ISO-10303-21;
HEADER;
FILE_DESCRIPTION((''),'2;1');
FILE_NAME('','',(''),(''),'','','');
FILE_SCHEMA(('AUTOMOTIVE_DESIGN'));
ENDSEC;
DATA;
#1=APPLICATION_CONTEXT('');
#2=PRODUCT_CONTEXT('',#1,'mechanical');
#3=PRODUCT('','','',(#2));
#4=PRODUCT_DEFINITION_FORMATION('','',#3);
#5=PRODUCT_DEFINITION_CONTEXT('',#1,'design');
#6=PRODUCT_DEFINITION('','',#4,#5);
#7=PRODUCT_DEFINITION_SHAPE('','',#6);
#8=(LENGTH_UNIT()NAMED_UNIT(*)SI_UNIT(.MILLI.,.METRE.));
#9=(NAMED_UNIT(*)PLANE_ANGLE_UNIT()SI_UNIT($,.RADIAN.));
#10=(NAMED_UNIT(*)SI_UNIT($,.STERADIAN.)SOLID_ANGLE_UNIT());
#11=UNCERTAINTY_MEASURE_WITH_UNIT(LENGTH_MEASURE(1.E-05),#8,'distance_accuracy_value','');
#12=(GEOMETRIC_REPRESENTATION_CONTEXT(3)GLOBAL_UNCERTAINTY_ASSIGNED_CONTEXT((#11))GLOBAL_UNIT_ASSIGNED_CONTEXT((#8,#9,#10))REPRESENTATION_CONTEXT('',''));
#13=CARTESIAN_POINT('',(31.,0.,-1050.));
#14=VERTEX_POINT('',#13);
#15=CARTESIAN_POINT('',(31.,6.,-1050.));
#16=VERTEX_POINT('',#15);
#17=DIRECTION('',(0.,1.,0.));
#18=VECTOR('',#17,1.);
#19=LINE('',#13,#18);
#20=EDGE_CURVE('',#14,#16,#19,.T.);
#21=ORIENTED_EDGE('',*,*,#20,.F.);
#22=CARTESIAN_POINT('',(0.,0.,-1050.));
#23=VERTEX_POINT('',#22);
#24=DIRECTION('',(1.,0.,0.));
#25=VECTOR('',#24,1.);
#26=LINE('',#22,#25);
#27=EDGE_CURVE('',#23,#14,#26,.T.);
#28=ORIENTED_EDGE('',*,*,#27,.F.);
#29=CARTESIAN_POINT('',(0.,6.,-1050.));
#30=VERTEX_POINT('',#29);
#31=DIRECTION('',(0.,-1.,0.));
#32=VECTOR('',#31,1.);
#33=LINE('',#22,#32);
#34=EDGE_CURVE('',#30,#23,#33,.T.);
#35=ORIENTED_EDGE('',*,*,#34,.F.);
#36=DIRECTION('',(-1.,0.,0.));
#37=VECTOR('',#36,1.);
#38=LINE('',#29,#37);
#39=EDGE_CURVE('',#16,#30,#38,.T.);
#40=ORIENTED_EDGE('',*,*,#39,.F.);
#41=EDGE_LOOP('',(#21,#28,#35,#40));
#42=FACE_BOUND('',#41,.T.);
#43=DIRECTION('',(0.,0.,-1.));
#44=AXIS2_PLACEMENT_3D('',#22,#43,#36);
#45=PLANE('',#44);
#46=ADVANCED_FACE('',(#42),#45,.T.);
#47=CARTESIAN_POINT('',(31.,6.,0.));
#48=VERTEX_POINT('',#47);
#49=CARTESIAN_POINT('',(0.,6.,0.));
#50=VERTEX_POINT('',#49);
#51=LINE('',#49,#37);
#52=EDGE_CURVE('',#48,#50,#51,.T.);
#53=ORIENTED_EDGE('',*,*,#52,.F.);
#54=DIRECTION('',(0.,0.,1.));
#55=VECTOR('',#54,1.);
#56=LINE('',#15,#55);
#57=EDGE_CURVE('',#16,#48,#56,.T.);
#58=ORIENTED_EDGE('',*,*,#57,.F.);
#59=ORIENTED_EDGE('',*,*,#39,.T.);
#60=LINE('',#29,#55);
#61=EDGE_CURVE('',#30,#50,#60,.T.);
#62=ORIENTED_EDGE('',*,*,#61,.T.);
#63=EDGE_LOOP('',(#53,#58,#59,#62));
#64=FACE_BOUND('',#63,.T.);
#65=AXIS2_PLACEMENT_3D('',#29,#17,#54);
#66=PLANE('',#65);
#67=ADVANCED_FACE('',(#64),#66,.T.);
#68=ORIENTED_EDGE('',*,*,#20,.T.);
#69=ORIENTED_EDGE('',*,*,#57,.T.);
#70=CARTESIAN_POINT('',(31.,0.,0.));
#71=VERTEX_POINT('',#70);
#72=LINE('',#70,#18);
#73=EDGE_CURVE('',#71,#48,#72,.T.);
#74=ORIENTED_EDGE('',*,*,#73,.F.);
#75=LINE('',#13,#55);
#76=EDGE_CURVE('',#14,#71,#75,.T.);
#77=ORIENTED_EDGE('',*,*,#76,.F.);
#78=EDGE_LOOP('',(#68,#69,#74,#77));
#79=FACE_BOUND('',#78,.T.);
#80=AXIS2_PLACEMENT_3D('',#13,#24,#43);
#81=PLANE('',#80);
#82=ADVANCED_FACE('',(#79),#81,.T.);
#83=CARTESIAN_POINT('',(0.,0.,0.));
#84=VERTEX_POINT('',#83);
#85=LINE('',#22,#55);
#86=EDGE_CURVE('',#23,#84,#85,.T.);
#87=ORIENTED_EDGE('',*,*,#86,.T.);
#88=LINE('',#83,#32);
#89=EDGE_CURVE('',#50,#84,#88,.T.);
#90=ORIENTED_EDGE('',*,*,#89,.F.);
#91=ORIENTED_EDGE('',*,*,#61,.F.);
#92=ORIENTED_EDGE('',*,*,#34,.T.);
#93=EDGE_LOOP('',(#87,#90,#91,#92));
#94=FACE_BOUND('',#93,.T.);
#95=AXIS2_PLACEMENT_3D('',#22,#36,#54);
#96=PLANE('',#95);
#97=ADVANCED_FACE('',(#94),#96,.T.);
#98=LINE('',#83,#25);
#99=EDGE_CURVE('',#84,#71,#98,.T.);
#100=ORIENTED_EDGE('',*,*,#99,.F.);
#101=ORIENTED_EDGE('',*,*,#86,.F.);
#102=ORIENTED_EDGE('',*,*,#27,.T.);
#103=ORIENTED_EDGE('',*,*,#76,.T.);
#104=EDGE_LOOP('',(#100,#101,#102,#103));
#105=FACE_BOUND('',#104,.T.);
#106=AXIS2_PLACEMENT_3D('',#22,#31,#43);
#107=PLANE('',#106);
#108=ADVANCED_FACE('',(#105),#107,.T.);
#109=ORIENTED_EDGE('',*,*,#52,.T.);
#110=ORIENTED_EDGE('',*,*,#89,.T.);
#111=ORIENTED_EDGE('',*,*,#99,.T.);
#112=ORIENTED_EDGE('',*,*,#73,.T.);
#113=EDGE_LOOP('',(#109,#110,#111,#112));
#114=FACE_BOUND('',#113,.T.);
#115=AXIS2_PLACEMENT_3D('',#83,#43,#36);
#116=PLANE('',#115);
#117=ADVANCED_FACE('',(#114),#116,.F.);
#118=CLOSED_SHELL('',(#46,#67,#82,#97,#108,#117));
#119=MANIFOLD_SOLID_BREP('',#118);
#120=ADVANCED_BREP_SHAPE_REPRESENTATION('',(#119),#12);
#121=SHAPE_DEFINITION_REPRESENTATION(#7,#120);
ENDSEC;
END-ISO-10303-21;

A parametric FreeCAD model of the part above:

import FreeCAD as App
import Part
import Sketcher

V = App.Vector


def add_polygon(sketch, points):
    """Adds a closed chain of lines whose ends are joined by coincident constraints."""
    first, n = sketch.GeometryCount, len(points)
    for a, b in zip(points, points[1:] + points[:1]):
        sketch.addGeometry(Part.LineSegment(App.Vector(*a, 0), App.Vector(*b, 0)), False)
    for i in range(n):
        sketch.addConstraint(Sketcher.Constraint("Coincident", first + i, 2, first + (i + 1) % n, 1))

doc = App.newDocument("Part")
params = doc.addObject("Spreadsheet::Sheet", "Params")
for row, (alias, value) in enumerate([
    ("sketch1_width", "31 mm"),
    ("sketch1_height", "6 mm"),
    ("pad1_length", "1050 mm"),
], start=1):
    params.set(f"A{row}", alias)
    params.set(f"B{row}", "=" + value)
    params.setAlias(f"B{row}", alias)

body = doc.addObject("PartDesign::Body", "Body")

# Sketch on XY plane
sketch1 = body.newObject("Sketcher::SketchObject", "Sketch")
sketch1.AttachmentSupport = (doc.getObject("XY_Plane"), [""])
sketch1.MapMode = "FlatFace"
add_polygon(sketch1, [(0, 6), (0, 0), (31, 0), (31, 6)])  # lines 0-3
sketch1.addConstraint(Sketcher.Constraint("Vertical", 0))
sketch1.addConstraint(Sketcher.Constraint("Horizontal", 1))
sketch1.addConstraint(Sketcher.Constraint("Vertical", 2))
sketch1.addConstraint(Sketcher.Constraint("Horizontal", 3))
sketch1.addConstraint(Sketcher.Constraint("Coincident", 0, 2, -1, 1))
sketch1.addConstraint(Sketcher.Constraint("DistanceX", 1, 1, 1, 2, 31.0))
sketch1.addConstraint(Sketcher.Constraint("DistanceY", 0, 2, 0, 1, 6.0))
sketch1.setExpression("Constraints[9]", "Params.sketch1_width")
sketch1.setExpression("Constraints[10]", "Params.sketch1_height")
pad1 = body.newObject("PartDesign::Pad", "Pad")
pad1.Profile = sketch1
pad1.setExpression("Length", "Params.pad1_length")
pad1.Reversed = True

doc.recompute()
